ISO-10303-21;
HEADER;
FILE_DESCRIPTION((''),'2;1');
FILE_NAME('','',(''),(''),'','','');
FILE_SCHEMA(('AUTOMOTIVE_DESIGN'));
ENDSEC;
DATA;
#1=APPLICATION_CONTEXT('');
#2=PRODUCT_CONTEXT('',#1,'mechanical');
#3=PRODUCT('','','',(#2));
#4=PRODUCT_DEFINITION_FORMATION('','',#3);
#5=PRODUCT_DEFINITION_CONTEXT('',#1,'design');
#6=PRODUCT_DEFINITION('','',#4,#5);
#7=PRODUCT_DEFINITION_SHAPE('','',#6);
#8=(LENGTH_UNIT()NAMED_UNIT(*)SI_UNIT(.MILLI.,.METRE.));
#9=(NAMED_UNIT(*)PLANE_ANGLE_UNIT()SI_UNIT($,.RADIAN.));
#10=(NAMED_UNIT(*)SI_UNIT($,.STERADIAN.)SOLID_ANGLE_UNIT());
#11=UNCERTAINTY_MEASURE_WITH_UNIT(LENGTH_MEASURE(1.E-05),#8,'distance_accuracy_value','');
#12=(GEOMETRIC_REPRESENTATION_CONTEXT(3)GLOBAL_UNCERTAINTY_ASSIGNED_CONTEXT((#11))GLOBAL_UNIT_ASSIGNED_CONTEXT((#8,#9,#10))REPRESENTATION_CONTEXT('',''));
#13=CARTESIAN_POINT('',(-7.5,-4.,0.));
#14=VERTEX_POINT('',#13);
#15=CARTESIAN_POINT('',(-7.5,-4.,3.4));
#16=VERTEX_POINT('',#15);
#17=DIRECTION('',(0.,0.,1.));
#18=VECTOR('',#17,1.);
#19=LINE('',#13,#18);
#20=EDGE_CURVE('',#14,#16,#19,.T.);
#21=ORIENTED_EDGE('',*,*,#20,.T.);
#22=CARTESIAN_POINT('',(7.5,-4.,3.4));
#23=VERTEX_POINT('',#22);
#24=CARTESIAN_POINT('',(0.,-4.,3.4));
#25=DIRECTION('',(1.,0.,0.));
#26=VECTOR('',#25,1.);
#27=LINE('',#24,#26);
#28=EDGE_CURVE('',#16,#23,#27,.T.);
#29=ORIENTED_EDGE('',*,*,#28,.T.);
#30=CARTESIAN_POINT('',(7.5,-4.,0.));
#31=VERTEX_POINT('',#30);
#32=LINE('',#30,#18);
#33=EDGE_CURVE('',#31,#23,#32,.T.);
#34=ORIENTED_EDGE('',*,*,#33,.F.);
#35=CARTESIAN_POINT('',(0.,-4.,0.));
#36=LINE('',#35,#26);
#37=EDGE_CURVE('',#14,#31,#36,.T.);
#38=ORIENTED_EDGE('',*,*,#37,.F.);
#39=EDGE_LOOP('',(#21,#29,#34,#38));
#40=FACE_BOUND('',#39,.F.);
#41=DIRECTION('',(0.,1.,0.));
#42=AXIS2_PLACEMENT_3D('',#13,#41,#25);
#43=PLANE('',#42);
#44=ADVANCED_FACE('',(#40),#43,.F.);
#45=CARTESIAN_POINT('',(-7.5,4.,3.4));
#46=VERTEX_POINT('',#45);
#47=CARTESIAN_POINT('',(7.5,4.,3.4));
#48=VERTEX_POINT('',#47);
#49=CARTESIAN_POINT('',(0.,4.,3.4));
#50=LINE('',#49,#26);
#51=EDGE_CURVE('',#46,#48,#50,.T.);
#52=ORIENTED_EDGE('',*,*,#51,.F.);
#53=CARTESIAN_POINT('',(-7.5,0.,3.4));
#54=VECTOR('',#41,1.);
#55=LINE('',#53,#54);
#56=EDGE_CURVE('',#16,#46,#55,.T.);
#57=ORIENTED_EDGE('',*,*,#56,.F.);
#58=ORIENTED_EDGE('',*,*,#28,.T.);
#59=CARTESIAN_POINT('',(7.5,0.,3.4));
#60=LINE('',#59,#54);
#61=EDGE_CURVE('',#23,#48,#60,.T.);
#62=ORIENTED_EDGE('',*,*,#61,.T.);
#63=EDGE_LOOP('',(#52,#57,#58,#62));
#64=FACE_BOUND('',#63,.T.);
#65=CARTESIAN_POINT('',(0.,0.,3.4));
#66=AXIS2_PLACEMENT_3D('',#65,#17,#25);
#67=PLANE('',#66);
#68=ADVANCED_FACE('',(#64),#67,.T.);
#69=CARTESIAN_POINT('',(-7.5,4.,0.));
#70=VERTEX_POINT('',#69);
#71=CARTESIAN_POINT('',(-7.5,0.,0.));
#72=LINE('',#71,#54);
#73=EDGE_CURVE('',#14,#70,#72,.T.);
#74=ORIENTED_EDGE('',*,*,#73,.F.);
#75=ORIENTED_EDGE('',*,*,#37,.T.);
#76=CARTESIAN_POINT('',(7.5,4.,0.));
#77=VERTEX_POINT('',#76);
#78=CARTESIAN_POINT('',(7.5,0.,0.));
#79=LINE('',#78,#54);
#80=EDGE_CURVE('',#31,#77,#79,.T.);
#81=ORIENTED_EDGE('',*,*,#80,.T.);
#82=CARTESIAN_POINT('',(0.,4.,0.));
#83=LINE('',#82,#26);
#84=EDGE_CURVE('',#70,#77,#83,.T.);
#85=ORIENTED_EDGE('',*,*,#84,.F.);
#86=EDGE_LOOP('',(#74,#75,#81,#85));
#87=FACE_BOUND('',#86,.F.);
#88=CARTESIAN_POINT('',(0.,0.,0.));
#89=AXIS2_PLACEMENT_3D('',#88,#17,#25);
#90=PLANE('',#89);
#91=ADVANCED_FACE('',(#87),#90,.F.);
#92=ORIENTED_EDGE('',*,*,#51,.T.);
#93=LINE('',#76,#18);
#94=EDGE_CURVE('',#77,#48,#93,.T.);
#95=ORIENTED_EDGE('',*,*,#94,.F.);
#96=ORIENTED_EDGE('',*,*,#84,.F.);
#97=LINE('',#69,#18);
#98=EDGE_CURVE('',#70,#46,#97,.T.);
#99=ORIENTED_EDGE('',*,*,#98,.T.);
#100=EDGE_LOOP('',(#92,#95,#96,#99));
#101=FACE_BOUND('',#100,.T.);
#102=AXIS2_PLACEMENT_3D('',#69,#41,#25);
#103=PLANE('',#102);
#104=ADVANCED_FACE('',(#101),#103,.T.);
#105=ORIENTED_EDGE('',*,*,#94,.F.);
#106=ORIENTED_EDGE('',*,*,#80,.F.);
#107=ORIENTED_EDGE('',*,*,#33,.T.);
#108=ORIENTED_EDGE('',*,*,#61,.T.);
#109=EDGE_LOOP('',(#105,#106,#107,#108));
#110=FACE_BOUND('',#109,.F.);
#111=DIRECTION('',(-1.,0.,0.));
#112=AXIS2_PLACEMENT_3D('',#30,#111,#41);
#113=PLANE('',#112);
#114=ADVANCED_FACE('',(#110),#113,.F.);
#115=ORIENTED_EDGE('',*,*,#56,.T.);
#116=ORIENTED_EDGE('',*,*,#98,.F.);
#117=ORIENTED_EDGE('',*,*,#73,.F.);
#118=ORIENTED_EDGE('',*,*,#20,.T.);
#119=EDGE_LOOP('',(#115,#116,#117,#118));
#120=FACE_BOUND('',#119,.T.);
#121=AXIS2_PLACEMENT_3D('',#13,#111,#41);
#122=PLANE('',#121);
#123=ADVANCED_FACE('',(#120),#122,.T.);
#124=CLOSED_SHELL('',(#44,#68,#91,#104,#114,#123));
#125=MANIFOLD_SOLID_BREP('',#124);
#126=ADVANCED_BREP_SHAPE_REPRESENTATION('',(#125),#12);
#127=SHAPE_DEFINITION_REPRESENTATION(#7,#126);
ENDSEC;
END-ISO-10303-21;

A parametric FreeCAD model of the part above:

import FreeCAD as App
import Part
import Sketcher

doc = App.newDocument("Part")
body = doc.addObject("PartDesign::Body", "Body")

sketch1 = doc.addObject("Sketcher::SketchObject", "Sketch")
body.addObject(sketch1)
sketch1.AttachmentSupport = (doc.XY_Plane, [""])
sketch1.MapMode = "FlatFace"
sketch1.addGeometry([
    Part.LineSegment(App.Vector(-8, 4, 0), App.Vector(-8, -4, 0)),
    Part.LineSegment(App.Vector(-8, -4, 0), App.Vector(8, -4, 0)),
    Part.LineSegment(App.Vector(8, -4, 0), App.Vector(8, 4, 0)),
    Part.LineSegment(App.Vector(8, 4, 0), App.Vector(-8, 4, 0)),
], False)
sketch1.addConstraint([
    Sketcher.Constraint("Coincident", 0, 2, 1, 1),
    Sketcher.Constraint("Coincident", 1, 2, 2, 1),
    Sketcher.Constraint("Coincident", 2, 2, 3, 1),
    Sketcher.Constraint("Coincident", 3, 2, 0, 1),
    Sketcher.Constraint("Vertical", 0),
    Sketcher.Constraint("Horizontal", 1),
    Sketcher.Constraint("Vertical", 2),
    Sketcher.Constraint("Horizontal", 3),
    Sketcher.Constraint("Symmetric", 0, 2, 2, 2, -1, 1),
    Sketcher.Constraint("DistanceX", 1, 1, 1, 2, 15.0),
    Sketcher.Constraint("DistanceY", 0, 2, 0, 1, 8.0),
])
pad1 = doc.addObject("PartDesign::Pad", "Pad")
body.addObject(pad1)
pad1.Profile = sketch1
pad1.Length = 3.4

doc.recompute()
